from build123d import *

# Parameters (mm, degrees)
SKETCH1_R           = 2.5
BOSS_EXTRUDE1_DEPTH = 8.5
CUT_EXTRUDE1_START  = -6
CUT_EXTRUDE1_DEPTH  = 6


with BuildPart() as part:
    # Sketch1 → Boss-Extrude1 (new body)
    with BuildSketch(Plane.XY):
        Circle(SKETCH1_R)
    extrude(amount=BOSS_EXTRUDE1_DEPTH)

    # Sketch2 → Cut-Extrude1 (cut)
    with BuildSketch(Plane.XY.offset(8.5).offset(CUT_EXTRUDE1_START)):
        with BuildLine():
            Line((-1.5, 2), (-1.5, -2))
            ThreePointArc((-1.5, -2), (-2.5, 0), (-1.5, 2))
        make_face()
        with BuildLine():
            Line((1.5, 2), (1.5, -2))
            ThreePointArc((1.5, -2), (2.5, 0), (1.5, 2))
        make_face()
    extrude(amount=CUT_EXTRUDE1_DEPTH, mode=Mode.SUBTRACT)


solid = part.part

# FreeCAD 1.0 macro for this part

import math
import FreeCAD as App
import Part
import Sketcher

doc = App.newDocument("Part")
body = doc.addObject("PartDesign::Body", "Body")

# Sketch on XY plane
sketch1 = body.newObject("Sketcher::SketchObject", "Sketch")
sketch1.AttachmentSupport = (doc.getObject("XY_Plane"), [""])
sketch1.MapMode = "FlatFace"
sketch1.addGeometry(Part.Circle(App.Vector(0, 0, 0), App.Vector(0, 0, 1), 2.5), False)
sketch1.addConstraint([
    Sketcher.Constraint("Coincident", 0, 3, -1, 1),
    Sketcher.Constraint("Diameter", 0, 5.0),
])
pad1 = body.newObject("PartDesign::Pad", "Pad")
pad1.Profile = sketch1
pad1.Length = 8.5

# Sketch on XY plane
sketch2 = body.newObject("Sketcher::SketchObject", "Sketch001")
sketch2.AttachmentSupport = (doc.getObject("XY_Plane"), [""])
sketch2.MapMode = "FlatFace"
sketch2.AttachmentOffset = App.Placement(App.Vector(0, 0, 2.5), App.Rotation())
sketch2.addGeometry([
    Part.LineSegment(App.Vector(-1.5, -2, 0), App.Vector(-1.5, 2, 0)),
    Part.ArcOfCircle(Part.Circle(App.Vector(0, 0, 0), App.Vector(0, 0, 1), 2.5), math.radians(127), math.radians(233)),
    Part.LineSegment(App.Vector(1.5, 2, 0), App.Vector(1.5, -2, 0)),
    Part.ArcOfCircle(Part.Circle(App.Vector(0, 0, 0), App.Vector(0, 0, 1), 2.5), math.radians(-53), math.radians(53)),
], False)
sketch2.addConstraint([
    Sketcher.Constraint("Coincident", 0, 1, 1, 2),
    Sketcher.Constraint("Coincident", 1, 1, 0, 2),
    Sketcher.Constraint("Coincident", 2, 1, 3, 2),
    Sketcher.Constraint("Coincident", 3, 1, 2, 2),
    Sketcher.Constraint("Vertical", 0),
    Sketcher.Constraint("Vertical", 2),
    Sketcher.Constraint("Coincident", 1, 3, -1, 1),
    Sketcher.Constraint("Coincident", 3, 3, -1, 1),
    Sketcher.Constraint("Equal", 1, 3),
    Sketcher.Constraint("Horizontal", 1, 1, 2, 1),
    Sketcher.Constraint("Radius", 1, 2.5),
    Sketcher.Constraint("DistanceY", 0, 1, 0, 2, 4.0),
])
pocket1 = body.newObject("PartDesign::Pocket", "Pocket")
pocket1.Profile = sketch2
pocket1.Length = 6
pocket1.Reversed = True

doc.recompute()
